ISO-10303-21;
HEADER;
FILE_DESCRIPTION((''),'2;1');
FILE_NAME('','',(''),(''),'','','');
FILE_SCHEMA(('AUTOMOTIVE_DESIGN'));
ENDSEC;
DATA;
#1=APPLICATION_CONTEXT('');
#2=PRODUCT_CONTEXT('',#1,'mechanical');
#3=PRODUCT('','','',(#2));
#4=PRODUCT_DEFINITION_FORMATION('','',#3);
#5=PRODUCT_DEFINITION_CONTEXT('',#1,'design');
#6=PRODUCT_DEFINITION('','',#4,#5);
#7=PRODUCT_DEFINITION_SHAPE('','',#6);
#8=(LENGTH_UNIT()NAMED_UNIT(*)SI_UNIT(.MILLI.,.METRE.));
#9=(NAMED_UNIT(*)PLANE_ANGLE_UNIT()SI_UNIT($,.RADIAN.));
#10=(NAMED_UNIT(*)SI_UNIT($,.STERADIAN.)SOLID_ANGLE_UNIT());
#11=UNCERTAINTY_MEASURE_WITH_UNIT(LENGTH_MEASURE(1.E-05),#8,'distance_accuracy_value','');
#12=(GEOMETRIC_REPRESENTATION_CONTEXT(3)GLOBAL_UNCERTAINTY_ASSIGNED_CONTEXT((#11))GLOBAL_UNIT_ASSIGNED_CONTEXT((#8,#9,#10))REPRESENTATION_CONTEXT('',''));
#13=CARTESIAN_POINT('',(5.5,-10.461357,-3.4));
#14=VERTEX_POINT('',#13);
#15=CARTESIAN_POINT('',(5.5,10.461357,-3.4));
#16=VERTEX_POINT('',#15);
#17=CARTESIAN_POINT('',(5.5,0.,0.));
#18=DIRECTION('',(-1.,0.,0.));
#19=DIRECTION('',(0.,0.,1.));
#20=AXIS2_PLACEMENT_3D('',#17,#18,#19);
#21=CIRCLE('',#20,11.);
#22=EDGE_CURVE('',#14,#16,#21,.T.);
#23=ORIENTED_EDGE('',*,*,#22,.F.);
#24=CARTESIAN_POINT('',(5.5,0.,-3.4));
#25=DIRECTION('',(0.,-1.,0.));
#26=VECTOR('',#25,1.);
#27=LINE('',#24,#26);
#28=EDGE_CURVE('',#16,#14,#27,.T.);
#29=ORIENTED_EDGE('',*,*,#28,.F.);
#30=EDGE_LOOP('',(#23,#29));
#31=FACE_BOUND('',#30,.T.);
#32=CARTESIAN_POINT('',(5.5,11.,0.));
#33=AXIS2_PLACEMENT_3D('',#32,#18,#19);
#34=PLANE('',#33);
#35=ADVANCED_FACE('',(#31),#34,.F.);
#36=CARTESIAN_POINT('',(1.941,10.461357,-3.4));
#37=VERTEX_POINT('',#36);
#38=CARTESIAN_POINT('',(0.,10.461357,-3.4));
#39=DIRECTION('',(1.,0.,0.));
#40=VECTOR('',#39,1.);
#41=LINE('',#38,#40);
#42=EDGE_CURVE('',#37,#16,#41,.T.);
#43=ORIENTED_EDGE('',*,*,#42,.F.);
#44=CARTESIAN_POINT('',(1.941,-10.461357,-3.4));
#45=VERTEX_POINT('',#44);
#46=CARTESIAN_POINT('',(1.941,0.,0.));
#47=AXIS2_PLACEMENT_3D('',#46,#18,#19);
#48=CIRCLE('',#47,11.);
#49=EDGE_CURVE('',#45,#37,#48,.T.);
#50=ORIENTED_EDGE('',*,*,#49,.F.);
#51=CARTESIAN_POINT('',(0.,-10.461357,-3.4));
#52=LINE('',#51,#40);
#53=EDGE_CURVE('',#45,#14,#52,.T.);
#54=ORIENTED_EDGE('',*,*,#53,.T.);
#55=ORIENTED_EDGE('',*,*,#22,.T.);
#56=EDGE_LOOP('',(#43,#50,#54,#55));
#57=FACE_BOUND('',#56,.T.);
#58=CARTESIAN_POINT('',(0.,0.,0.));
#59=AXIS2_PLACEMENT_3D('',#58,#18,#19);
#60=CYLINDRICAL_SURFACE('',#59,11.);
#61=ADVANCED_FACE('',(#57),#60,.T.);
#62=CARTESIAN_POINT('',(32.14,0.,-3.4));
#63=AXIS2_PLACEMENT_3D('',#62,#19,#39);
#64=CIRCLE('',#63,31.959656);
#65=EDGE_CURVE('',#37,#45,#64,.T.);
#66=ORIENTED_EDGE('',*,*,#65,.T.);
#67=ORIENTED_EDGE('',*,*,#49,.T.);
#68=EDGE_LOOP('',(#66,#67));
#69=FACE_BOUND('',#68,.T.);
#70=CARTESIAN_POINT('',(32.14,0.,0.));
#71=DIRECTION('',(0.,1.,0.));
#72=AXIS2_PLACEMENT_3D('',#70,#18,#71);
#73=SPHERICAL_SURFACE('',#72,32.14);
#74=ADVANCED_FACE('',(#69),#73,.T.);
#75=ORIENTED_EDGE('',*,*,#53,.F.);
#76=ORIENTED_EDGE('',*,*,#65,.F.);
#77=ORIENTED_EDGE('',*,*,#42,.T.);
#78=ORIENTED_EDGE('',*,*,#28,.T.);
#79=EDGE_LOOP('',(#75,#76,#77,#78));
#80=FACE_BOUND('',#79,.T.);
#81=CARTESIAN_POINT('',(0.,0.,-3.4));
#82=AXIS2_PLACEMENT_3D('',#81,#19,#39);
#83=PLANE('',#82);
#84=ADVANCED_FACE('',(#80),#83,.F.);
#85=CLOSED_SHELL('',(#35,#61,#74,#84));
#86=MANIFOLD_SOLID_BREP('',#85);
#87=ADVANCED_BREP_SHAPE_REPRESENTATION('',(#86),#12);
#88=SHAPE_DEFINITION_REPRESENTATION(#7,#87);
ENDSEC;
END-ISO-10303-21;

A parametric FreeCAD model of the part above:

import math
import FreeCAD as App
import Part
import Sketcher

V = App.Vector


def add_polygon(sketch, points):
    """Adds a closed chain of lines whose ends are joined by coincident constraints."""
    first, n = sketch.GeometryCount, len(points)
    for a, b in zip(points, points[1:] + points[:1]):
        sketch.addGeometry(Part.LineSegment(App.Vector(*a, 0), App.Vector(*b, 0)), False)
    for i in range(n):
        sketch.addConstraint(Sketcher.Constraint("Coincident", first + i, 2, first + (i + 1) % n, 1))

doc = App.newDocument("Part")
body = doc.addObject("PartDesign::Body", "Body")

# Sketch on XY plane
sketch1 = body.newObject("Sketcher::SketchObject", "Sketch")
sketch1.AttachmentSupport = (doc.getObject("XY_Plane"), [""])
sketch1.MapMode = "FlatFace"
sketch1.addGeometry(Part.LineSegment(V(5.5, 11, 0), V(1.941, 11, 0)), False)
sketch1.addGeometry(Part.ArcOfCircle(Part.Circle(V(32.14, 0, 0), V(0, 0, 1), 32.14), math.radians(159.985823), math.radians(180)), False)
sketch1.addGeometry(Part.LineSegment(V(0, 0, 0), V(5.5, 0, 0)), False)
sketch1.addGeometry(Part.LineSegment(V(5.5, 0, 0), V(5.5, 11, 0)), False)
sketch1.addConstraint(Sketcher.Constraint("Coincident", 0, 2, 1, 1))
sketch1.addConstraint(Sketcher.Constraint("Coincident", 1, 2, 2, 1))
sketch1.addConstraint(Sketcher.Constraint("Coincident", 2, 2, 3, 1))
sketch1.addConstraint(Sketcher.Constraint("Coincident", 3, 2, 0, 1))
sketch1.addConstraint(Sketcher.Constraint("Horizontal", 0))
sketch1.addConstraint(Sketcher.Constraint("Horizontal", 2))
sketch1.addConstraint(Sketcher.Constraint("Vertical", 3))
sketch1.addConstraint(Sketcher.Constraint("Coincident", 1, 2, -1, 1))
sketch1.addConstraint(Sketcher.Constraint("PointOnObject", 1, 3, -1))
sketch1.addConstraint(Sketcher.Constraint("DistanceY", 3, 1, 3, 2, 11.0))
sketch1.addConstraint(Sketcher.Constraint("Radius", 1, 32.14))
sketch1.addConstraint(Sketcher.Constraint("DistanceX", 2, 1, 2, 2, 5.5))
revolution = body.newObject("PartDesign::Revolution", "Revolution")
revolution.Profile = sketch1
revolution.ReferenceAxis = (sketch1, ["H_Axis"])
revolution.Angle = 360

# Sketch on YZ plane
sketch2 = body.newObject("Sketcher::SketchObject", "Sketch001")
sketch2.AttachmentSupport = (doc.getObject("YZ_Plane"), [""])
sketch2.MapMode = "FlatFace"
sketch2.AttachmentOffset = App.Placement(V(0, 0, 5.5), App.Rotation())
add_polygon(sketch2, [(72.15081, -3.4), (-72.15081, -3.4), (-72.15081, -126.778904), (72.15081, -126.778904)])  # lines 0-3
sketch2.addConstraint(Sketcher.Constraint("Horizontal", 0))
sketch2.addConstraint(Sketcher.Constraint("Vertical", 1))
sketch2.addConstraint(Sketcher.Constraint("Horizontal", 2))
sketch2.addConstraint(Sketcher.Constraint("Vertical", 3))
sketch2.addConstraint(Sketcher.Constraint("DistanceY", 0, 2, -1, 1, 3.4))
sketch2.addConstraint(Sketcher.Constraint("DistanceX", 0, 2, 0, 1, 144.301619))
sketch2.addConstraint(Sketcher.Constraint("DistanceY", 1, 2, 1, 1, 123.378904))
sketch2.addConstraint(Sketcher.Constraint("DistanceX", 0, 2, -1, 1, 72.15081))
pocket1 = body.newObject("PartDesign::Pocket", "Pocket")
pocket1.Profile = sketch2
pocket1.Type = "ThroughAll"

doc.recompute()
